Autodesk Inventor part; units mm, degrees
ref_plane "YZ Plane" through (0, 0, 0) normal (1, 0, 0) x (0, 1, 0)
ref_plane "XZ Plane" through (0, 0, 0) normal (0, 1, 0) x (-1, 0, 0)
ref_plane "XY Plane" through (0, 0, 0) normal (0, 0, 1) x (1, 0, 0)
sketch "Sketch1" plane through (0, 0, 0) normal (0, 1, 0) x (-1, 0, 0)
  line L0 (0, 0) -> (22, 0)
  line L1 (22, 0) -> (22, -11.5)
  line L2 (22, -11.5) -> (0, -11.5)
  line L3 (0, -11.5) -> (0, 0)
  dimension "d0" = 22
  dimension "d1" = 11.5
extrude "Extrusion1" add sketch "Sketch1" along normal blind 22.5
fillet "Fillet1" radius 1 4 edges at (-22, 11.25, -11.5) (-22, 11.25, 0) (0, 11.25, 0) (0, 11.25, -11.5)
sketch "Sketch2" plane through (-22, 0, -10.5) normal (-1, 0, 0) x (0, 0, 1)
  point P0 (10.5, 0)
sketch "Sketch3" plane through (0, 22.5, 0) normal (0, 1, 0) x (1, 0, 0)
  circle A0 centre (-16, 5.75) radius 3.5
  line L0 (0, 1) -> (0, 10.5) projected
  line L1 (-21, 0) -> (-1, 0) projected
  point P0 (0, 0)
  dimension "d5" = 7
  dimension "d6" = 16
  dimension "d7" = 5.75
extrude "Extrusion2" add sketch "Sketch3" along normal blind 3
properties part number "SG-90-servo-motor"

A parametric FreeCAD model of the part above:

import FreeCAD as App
import Part
import Sketcher
from FreeCAD import Vector
Q = App.Units.Quantity


def edges_at(feature, points):
    """Names of the edges that pass closest to the given points."""
    edges = feature.Shape.Edges
    near = lambda p: min(range(len(edges)), key=lambda i: edges[i].distToShape(Part.Vertex(*p))[0])
    return sorted({f"Edge{near(p) + 1}" for p in points})

doc = App.newDocument("Part")
body = doc.addObject("PartDesign::Body", "Body")

sketch1 = body.newObject("Sketcher::SketchObject", "Sketch")
sketch1.AttachmentSupport = (doc.getObject("XZ_Plane"), [""])
sketch1.MapMode = "FlatFace"
sketch1.addGeometry(Part.LineSegment(Vector(-22, 0, 0), Vector(0, 0, 0)), False)
sketch1.addGeometry(Part.LineSegment(Vector(0, 0, 0), Vector(0, -12, 0)), False)
sketch1.addGeometry(Part.LineSegment(Vector(0, -12, 0), Vector(-22, -12, 0)), False)
sketch1.addGeometry(Part.LineSegment(Vector(-22, -12, 0), Vector(-22, 0, 0)), False)
sketch1.addConstraint(Sketcher.Constraint("Coincident", 0, 2, 1, 1))
sketch1.addConstraint(Sketcher.Constraint("Coincident", 1, 2, 2, 1))
sketch1.addConstraint(Sketcher.Constraint("Coincident", 2, 2, 3, 1))
sketch1.addConstraint(Sketcher.Constraint("Coincident", 3, 2, 0, 1))
sketch1.addConstraint(Sketcher.Constraint("Horizontal", 0))
sketch1.addConstraint(Sketcher.Constraint("Vertical", 1))
sketch1.addConstraint(Sketcher.Constraint("Horizontal", 2))
sketch1.addConstraint(Sketcher.Constraint("Vertical", 3))
sketch1.addConstraint(Sketcher.Constraint("Coincident", 0, 2, -1, 1))
sketch1.addConstraint(Sketcher.Constraint("DistanceX", 0, 1, 0, 2, Q("22 mm")))
sketch1.addConstraint(Sketcher.Constraint("DistanceY", 1, 2, 1, 1, Q("11.5 mm")))
pad1 = body.newObject("PartDesign::Pad", "Pad")
pad1.Profile = sketch1
pad1.Length = 22.5
pad1.Reversed = True
doc.recompute()

fillet = body.newObject("PartDesign::Fillet", "Fillet")
fillet.Base = (pad1, edges_at(pad1, [
    (-22, 11.25, -11.5),
    (-22, 11.25, 0),
    (0, 11.25, 0),
    (0, 11.25, -11.5),
]))
fillet.Radius = 1

sketch2 = body.newObject("Sketcher::SketchObject", "Sketch001")
sketch2.AttachmentSupport = (doc.getObject("XZ_Plane"), [""])
sketch2.MapMode = "FlatFace"
sketch2.AttachmentOffset = App.Placement(Vector(0, 0, -22.5), App.Rotation())
sketch2.addGeometry(Part.Circle(Vector(-16, -5.8, 0), Vector(0, 0, 1), 3.5), False)
sketch2.addConstraint(Sketcher.Constraint("Diameter", 0, Q("7 mm")))
sketch2.addConstraint(Sketcher.Constraint("DistanceX", 0, 3, -1, 1, Q("16 mm")))
sketch2.addConstraint(Sketcher.Constraint("DistanceY", 0, 3, -1, 1, Q("5.75 mm")))
pad2 = body.newObject("PartDesign::Pad", "Pad001")
pad2.Profile = sketch2
pad2.Length = 3
pad2.Reversed = True

doc.recompute()
